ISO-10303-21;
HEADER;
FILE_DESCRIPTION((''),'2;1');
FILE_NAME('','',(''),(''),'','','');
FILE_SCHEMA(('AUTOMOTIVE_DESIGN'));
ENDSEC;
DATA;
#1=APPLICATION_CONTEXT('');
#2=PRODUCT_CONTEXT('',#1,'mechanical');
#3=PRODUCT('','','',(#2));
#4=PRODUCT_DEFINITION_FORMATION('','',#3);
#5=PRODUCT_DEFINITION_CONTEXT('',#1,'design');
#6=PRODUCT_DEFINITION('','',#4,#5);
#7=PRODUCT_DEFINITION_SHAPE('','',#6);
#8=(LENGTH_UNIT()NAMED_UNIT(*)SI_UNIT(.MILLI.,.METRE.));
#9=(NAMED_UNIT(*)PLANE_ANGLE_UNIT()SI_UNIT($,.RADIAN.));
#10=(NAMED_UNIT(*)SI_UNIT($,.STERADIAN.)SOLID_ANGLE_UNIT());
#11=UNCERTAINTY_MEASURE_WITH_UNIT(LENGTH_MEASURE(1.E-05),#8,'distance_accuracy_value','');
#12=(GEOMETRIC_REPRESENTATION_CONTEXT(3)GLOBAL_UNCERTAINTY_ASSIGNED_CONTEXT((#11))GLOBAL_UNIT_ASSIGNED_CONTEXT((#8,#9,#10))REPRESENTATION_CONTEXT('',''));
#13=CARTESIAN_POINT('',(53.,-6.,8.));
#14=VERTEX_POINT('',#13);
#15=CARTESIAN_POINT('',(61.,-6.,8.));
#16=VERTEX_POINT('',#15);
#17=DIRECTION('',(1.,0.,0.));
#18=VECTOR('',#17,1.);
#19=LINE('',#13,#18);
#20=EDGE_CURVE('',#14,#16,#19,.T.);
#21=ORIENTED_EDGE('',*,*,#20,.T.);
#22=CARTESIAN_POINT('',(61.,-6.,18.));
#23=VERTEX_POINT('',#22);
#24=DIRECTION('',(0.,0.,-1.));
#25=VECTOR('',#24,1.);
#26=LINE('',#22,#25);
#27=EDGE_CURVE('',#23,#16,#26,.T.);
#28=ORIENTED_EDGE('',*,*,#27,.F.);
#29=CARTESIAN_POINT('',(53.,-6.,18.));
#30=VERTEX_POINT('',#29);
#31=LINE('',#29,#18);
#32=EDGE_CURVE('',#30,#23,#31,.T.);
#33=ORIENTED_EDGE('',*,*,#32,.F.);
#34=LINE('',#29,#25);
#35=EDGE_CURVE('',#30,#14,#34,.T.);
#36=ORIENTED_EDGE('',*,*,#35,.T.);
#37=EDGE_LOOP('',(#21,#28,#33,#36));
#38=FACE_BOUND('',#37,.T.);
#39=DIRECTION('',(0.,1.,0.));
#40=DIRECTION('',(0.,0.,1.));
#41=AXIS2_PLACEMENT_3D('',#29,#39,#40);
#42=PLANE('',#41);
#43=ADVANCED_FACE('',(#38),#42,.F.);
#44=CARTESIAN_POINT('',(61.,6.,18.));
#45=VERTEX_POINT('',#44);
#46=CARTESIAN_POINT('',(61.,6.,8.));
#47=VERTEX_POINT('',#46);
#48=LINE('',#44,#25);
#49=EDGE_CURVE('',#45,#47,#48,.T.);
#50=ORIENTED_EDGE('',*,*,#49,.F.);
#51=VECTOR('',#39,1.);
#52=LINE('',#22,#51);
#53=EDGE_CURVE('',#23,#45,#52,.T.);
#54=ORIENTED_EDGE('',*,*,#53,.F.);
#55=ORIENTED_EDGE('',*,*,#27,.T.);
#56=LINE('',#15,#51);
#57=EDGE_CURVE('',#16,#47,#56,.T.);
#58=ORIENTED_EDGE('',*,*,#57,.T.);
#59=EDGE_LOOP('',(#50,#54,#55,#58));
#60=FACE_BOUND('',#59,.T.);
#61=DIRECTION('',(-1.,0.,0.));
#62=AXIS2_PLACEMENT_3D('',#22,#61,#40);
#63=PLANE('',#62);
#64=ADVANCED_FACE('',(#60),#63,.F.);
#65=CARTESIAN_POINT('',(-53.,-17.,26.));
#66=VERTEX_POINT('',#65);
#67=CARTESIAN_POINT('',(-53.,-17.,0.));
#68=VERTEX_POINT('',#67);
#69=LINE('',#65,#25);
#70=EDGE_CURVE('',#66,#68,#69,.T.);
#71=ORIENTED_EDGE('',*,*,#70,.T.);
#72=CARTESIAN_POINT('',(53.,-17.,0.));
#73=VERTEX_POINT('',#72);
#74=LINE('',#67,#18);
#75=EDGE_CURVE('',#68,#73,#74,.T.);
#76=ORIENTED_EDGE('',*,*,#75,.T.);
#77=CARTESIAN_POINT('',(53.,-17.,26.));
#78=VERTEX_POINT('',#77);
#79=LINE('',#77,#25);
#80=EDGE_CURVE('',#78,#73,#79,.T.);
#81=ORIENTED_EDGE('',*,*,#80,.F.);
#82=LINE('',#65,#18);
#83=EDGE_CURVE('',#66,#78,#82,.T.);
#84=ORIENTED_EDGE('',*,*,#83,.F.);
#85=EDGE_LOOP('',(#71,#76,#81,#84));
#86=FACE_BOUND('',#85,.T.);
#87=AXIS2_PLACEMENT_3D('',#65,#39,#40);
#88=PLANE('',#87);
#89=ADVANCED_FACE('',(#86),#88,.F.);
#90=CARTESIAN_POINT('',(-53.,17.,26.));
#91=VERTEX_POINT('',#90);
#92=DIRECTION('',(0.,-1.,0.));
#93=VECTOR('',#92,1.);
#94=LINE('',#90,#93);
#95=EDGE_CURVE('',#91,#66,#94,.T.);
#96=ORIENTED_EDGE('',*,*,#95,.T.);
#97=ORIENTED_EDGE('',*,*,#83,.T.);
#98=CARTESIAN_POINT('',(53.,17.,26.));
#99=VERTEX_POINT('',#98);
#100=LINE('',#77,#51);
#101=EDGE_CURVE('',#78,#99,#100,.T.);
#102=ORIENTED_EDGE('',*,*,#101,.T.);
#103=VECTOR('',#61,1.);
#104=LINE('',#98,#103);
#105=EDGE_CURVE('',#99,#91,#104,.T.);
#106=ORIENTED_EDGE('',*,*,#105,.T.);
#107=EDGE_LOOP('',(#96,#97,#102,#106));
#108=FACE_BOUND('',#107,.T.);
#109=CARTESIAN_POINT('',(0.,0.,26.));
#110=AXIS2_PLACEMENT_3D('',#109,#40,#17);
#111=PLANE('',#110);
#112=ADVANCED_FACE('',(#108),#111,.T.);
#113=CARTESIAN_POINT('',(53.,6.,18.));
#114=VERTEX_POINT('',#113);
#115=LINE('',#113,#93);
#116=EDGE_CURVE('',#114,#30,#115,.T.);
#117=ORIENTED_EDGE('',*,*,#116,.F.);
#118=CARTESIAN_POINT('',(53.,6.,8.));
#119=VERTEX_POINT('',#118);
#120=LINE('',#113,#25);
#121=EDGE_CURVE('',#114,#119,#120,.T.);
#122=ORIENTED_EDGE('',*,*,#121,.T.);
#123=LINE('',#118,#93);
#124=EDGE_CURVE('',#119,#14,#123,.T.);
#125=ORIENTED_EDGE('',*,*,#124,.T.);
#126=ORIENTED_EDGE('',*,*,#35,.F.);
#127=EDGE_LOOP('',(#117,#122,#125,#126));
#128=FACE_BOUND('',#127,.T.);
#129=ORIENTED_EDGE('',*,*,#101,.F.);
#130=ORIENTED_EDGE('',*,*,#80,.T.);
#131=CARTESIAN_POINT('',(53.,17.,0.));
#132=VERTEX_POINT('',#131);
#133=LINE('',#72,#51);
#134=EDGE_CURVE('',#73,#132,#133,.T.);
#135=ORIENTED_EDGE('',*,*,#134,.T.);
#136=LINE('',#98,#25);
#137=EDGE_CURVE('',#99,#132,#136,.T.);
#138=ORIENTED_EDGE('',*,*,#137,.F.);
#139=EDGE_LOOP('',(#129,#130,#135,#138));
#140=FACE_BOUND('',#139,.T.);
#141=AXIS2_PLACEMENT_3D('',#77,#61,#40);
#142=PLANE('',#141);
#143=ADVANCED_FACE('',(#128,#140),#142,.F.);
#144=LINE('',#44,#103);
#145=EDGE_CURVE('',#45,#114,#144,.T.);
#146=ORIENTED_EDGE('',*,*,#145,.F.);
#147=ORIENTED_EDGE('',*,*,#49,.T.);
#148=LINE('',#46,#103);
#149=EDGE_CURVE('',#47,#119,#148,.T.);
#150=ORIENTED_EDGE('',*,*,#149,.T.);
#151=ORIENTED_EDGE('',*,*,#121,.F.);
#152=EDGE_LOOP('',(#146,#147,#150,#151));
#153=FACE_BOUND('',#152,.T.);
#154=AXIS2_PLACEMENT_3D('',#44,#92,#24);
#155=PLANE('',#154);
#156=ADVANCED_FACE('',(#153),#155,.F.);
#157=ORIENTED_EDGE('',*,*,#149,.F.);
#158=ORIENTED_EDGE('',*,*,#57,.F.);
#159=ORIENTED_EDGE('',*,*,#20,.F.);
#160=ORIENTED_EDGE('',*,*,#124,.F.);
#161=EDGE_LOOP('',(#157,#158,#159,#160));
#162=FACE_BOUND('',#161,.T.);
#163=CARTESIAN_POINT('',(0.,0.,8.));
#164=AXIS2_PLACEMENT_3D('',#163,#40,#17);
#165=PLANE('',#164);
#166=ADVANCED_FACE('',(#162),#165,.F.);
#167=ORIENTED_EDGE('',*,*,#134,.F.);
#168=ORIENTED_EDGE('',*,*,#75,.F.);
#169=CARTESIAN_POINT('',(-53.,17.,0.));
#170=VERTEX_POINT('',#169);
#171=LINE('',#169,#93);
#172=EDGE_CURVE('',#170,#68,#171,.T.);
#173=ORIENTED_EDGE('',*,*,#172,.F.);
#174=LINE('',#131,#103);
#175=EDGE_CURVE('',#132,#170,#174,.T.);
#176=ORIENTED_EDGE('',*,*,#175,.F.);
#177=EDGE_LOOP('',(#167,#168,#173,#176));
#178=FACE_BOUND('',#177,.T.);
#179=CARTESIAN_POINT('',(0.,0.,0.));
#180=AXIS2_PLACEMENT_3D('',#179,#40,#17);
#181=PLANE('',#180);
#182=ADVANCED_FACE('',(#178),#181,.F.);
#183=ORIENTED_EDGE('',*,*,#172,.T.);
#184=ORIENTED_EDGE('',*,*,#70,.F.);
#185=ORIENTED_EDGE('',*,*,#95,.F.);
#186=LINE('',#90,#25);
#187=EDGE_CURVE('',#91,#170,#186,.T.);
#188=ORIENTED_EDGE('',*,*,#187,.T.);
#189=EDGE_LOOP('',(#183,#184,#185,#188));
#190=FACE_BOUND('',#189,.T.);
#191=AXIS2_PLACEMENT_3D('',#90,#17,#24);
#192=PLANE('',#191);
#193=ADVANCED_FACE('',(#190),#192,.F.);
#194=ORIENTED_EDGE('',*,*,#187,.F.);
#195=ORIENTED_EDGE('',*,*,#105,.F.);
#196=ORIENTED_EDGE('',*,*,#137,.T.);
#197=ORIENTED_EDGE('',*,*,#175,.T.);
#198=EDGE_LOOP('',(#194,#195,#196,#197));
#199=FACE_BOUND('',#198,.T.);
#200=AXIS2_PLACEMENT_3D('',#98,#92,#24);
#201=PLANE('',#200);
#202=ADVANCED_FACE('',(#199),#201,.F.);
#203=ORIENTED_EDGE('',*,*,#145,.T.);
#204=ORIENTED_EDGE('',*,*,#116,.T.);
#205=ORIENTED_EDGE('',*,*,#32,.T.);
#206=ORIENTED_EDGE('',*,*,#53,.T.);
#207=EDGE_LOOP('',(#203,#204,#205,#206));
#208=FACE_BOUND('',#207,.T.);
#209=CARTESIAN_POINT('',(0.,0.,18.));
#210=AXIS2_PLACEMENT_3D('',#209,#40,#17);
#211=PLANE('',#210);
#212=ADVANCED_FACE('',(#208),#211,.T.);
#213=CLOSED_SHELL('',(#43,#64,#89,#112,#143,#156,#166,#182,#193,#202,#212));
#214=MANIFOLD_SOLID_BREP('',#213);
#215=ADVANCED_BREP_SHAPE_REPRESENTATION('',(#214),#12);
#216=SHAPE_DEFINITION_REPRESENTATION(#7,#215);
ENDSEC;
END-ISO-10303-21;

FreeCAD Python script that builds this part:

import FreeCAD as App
import Part
import Sketcher

V = App.Vector

doc = App.newDocument("Part")
body = doc.addObject("PartDesign::Body", "Body")

sketch1 = doc.addObject("Sketcher::SketchObject", "Sketch")
body.addObject(sketch1)
sketch1.AttachmentSupport = (doc.XY_Plane, [""])
sketch1.MapMode = "FlatFace"
sketch1.addGeometry([
    Part.LineSegment(V(-53, 17, 0), V(-53, -17, 0)),
    Part.LineSegment(V(-53, -17, 0), V(53, -17, 0)),
    Part.LineSegment(V(53, -17, 0), V(53, 17, 0)),
    Part.LineSegment(V(53, 17, 0), V(-53, 17, 0)),
], False)
sketch1.addConstraint([
    Sketcher.Constraint("Coincident", 0, 2, 1, 1),
    Sketcher.Constraint("Coincident", 1, 2, 2, 1),
    Sketcher.Constraint("Coincident", 2, 2, 3, 1),
    Sketcher.Constraint("Coincident", 3, 2, 0, 1),
    Sketcher.Constraint("Vertical", 0),
    Sketcher.Constraint("Horizontal", 1),
    Sketcher.Constraint("Vertical", 2),
    Sketcher.Constraint("Horizontal", 3),
    Sketcher.Constraint("Symmetric", 0, 2, 2, 2, -1, 1),
    Sketcher.Constraint("DistanceX", 1, 1, 1, 2, 106.0),
    Sketcher.Constraint("DistanceY", 0, 2, 0, 1, 34.0),
])
pad1 = doc.addObject("PartDesign::Pad", "Pad")
body.addObject(pad1)
pad1.Profile = sketch1
pad1.Length = 26

sketch2 = doc.addObject("Sketcher::SketchObject", "Sketch001")
body.addObject(sketch2)
sketch2.AttachmentSupport = (doc.XY_Plane, [""])
sketch2.MapMode = "FlatFace"
sketch2.AttachmentOffset = App.Placement(V(0, 0, 8), App.Rotation())
sketch2.addGeometry([
    Part.LineSegment(V(53, 6, 0), V(53, -6, 0)),
    Part.LineSegment(V(53, -6, 0), V(61, -6, 0)),
    Part.LineSegment(V(61, -6, 0), V(61, 6, 0)),
    Part.LineSegment(V(61, 6, 0), V(53, 6, 0)),
], False)
sketch2.addConstraint([
    Sketcher.Constraint("Coincident", 0, 2, 1, 1),
    Sketcher.Constraint("Coincident", 1, 2, 2, 1),
    Sketcher.Constraint("Coincident", 2, 2, 3, 1),
    Sketcher.Constraint("Coincident", 3, 2, 0, 1),
    Sketcher.Constraint("Vertical", 0),
    Sketcher.Constraint("Horizontal", 1),
    Sketcher.Constraint("Vertical", 2),
    Sketcher.Constraint("Horizontal", 3),
    Sketcher.Constraint("DistanceX", 1, 1, 1, 2, 8.0),
    Sketcher.Constraint("DistanceY", 0, 2, 0, 1, 12.0),
    Sketcher.Constraint("DistanceX", -1, 1, 0, 2, 53.0),
    Sketcher.Constraint("DistanceY", 0, 2, -1, 1, 6.0),
])
pad2 = doc.addObject("PartDesign::Pad", "Pad001")
body.addObject(pad2)
pad2.Profile = sketch2
pad2.Length = 10

doc.recompute()
